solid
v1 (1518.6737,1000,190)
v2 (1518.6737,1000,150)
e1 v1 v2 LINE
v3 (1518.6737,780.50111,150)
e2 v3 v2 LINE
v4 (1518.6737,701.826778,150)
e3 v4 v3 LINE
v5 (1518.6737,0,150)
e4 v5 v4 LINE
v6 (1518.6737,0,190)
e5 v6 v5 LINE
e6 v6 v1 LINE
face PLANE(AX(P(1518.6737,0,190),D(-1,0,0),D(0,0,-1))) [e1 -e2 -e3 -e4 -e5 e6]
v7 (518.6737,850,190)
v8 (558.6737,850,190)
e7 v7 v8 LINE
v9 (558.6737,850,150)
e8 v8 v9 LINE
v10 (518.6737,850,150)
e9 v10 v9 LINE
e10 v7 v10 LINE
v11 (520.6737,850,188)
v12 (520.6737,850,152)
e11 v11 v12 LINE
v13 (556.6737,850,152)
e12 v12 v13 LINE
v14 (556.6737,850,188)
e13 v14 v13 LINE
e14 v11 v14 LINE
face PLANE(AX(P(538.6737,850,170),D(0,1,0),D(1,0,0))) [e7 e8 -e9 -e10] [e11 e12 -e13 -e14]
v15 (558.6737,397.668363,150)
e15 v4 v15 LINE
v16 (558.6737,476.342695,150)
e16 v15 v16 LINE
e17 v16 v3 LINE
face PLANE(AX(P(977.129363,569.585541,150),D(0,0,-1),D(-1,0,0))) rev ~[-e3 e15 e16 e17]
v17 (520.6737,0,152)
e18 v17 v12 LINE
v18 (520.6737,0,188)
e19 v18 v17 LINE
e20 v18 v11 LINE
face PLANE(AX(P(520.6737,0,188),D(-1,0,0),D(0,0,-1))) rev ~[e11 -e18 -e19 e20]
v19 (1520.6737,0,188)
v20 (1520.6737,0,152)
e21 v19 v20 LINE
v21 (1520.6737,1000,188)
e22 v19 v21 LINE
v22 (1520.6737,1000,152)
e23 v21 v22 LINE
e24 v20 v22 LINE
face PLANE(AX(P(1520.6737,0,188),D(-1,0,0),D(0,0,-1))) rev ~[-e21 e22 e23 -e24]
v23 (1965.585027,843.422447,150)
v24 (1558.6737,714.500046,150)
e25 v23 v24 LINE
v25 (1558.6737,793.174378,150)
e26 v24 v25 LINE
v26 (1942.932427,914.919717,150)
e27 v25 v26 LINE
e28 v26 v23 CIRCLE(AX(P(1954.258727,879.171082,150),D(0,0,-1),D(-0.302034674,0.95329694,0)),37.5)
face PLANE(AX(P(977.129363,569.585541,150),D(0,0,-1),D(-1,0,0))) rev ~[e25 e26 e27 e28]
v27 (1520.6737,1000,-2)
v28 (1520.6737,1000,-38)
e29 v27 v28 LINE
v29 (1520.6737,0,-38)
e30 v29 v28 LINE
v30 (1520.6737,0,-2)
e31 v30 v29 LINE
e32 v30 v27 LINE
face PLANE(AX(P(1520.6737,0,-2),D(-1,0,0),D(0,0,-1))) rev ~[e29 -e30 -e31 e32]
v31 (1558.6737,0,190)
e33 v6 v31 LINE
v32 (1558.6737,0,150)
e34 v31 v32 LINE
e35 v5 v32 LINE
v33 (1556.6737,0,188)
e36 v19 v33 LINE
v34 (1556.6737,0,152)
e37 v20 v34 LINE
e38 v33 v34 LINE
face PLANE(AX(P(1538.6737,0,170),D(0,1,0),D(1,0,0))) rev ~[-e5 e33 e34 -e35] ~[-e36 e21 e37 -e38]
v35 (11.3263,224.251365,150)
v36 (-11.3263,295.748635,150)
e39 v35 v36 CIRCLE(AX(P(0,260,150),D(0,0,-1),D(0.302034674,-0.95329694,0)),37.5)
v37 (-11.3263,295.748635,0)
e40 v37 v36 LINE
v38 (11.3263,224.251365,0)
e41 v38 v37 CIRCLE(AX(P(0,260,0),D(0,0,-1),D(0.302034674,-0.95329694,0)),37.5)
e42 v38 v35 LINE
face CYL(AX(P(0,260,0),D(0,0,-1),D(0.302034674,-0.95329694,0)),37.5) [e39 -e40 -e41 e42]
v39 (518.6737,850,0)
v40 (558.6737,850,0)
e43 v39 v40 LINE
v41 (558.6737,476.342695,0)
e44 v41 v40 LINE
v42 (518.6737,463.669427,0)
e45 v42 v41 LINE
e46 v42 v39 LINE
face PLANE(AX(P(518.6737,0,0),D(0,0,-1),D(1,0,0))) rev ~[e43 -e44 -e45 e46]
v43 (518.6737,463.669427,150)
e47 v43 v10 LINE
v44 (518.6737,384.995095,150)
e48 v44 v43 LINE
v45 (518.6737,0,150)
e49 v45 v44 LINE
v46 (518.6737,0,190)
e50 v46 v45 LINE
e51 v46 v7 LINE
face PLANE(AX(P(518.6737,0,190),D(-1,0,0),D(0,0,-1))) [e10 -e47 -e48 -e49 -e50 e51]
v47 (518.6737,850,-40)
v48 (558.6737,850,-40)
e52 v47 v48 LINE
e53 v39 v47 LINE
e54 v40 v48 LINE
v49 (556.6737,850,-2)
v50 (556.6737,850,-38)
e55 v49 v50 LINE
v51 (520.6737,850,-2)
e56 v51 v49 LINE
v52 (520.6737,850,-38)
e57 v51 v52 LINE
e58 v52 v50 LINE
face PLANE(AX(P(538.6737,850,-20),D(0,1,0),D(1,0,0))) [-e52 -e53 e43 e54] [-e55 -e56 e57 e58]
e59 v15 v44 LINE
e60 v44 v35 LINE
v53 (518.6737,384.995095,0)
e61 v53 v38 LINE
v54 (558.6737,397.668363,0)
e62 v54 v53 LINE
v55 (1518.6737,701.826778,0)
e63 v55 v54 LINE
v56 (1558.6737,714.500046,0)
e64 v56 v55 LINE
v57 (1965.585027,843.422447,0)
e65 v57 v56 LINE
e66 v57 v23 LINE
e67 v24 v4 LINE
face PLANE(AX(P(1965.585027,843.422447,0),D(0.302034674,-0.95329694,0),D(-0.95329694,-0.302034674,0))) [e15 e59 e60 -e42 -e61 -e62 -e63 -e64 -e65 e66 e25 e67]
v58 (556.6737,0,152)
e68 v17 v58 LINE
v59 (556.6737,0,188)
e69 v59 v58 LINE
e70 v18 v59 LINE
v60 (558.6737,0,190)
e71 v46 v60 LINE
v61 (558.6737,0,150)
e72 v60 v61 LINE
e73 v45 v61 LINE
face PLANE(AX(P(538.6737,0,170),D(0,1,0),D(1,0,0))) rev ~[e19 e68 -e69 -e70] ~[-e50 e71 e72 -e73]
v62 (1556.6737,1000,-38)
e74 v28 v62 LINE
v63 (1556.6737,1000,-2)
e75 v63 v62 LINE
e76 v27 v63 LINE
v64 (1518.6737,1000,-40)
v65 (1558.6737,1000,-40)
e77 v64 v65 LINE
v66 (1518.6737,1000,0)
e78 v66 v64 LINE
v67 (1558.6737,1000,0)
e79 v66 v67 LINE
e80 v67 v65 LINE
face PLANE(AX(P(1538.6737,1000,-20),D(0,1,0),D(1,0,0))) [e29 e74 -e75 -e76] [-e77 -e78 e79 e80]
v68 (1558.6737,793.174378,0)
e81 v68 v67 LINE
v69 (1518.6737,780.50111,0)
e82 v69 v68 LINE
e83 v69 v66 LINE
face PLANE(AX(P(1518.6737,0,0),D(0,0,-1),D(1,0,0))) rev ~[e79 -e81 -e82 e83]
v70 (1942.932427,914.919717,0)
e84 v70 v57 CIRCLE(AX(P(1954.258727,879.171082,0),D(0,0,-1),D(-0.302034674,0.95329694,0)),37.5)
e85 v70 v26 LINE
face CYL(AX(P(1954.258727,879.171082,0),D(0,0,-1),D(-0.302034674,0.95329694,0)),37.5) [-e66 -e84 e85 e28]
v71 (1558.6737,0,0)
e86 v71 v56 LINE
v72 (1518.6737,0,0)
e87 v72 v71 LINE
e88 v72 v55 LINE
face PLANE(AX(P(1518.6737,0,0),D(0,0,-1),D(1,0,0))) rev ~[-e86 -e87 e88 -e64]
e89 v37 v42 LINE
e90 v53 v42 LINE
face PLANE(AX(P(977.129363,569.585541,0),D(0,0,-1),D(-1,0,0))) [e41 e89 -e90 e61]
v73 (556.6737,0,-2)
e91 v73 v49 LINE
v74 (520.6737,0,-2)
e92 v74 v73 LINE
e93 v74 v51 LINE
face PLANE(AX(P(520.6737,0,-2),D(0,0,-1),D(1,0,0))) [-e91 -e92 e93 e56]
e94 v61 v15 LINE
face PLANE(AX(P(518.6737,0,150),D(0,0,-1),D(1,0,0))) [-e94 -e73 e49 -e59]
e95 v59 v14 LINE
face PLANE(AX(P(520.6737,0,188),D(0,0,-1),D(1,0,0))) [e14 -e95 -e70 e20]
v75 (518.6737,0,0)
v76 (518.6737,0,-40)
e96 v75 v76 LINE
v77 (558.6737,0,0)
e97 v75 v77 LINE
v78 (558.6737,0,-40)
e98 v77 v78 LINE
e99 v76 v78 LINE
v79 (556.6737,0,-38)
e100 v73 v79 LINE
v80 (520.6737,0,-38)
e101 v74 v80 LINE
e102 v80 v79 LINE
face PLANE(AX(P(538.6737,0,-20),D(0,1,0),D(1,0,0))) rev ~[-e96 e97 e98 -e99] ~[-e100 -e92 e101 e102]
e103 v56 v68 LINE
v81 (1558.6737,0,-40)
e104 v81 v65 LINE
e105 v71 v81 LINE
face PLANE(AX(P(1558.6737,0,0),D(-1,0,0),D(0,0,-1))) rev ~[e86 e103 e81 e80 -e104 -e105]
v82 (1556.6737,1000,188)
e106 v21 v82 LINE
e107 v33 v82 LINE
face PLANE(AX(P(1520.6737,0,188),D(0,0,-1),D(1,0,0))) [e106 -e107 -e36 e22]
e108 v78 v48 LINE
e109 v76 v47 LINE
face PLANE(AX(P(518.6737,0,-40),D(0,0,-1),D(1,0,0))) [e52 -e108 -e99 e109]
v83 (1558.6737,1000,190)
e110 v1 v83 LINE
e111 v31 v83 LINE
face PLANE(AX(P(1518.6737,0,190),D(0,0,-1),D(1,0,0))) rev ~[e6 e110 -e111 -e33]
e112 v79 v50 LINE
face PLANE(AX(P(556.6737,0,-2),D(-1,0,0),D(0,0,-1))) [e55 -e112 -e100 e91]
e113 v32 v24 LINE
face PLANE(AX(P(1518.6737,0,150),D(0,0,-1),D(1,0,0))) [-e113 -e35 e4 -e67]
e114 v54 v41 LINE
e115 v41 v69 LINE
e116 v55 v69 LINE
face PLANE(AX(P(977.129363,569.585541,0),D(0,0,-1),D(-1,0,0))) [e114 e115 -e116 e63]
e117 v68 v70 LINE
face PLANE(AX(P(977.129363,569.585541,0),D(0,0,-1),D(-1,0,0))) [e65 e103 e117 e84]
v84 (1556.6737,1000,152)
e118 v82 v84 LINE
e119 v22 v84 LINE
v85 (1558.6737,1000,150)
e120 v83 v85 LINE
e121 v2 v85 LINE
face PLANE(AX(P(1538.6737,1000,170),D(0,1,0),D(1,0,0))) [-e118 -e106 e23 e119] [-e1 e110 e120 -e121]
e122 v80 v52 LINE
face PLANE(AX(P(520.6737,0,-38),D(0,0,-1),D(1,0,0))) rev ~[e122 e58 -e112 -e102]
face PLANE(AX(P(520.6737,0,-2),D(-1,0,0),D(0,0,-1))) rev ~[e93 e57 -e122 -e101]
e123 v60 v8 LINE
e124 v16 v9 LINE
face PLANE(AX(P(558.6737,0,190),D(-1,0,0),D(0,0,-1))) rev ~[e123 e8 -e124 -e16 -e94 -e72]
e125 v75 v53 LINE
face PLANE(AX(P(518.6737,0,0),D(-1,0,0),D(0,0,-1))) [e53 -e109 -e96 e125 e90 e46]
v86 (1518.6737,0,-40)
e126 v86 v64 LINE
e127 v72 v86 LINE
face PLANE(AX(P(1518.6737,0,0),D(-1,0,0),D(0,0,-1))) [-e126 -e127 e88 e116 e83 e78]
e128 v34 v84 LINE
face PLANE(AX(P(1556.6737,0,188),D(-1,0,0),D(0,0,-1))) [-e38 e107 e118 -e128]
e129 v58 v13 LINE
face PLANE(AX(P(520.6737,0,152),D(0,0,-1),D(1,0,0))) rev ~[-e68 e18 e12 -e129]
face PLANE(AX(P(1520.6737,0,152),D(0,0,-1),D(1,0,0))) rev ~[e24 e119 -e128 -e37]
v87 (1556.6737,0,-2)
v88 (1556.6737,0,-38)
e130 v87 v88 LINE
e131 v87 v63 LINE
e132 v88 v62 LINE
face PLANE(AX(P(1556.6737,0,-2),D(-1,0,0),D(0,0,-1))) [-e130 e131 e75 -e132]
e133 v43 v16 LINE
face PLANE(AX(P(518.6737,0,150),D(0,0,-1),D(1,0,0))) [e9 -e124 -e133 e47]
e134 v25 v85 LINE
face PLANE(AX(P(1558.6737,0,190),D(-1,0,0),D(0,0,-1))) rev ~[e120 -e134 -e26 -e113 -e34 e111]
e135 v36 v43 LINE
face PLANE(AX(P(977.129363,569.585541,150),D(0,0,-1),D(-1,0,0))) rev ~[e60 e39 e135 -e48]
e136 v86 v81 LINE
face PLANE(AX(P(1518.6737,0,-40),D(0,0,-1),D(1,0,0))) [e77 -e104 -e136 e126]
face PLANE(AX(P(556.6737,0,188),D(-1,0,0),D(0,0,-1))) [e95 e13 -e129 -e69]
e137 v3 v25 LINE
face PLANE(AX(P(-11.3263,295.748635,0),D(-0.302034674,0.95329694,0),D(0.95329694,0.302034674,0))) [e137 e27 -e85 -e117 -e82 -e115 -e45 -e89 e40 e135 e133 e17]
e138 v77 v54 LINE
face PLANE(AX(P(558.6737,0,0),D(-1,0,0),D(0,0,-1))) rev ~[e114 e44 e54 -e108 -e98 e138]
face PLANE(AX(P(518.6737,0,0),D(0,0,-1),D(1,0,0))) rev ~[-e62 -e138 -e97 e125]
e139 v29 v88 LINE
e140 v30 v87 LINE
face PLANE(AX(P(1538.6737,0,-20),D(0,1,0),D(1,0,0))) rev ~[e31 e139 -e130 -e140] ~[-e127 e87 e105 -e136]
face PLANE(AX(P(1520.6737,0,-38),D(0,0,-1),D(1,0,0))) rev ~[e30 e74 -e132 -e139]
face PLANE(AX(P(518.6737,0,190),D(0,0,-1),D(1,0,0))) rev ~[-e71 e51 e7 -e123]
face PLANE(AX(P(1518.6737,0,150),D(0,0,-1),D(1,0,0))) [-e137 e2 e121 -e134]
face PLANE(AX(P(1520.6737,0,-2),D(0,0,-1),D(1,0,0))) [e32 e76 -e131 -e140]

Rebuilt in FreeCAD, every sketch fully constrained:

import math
import FreeCAD as App
import Part
import Sketcher
from FreeCAD import Vector

doc = App.newDocument("Part")
params = doc.addObject("Spreadsheet::Sheet", "Params")
for row, (alias, value) in enumerate([
    ("sketch1_radius", "37.5 mm"),
    ("sketch1_length", "2050 mm"),
    ("pad1_length", "150 mm"),
    ("sketch2_width", "40 mm"),
    ("sketch2_width2", "36 mm"),
    ("pad2_length", "850 mm"),
    ("sketch3_width", "40 mm"),
    ("sketch3_width2", "36 mm"),
    ("pad3_length", "1000 mm"),
], start=1):
    params.set(f"A{row}", alias)
    params.set(f"B{row}", "=" + value)
    params.setAlias(f"B{row}", alias)

body = doc.addObject("PartDesign::Body", "Body")

# Sketch on XY plane
sketch1 = body.newObject("Sketcher::SketchObject", "Sketch")
sketch1.AttachmentSupport = (doc.getObject("XY_Plane"), [""])
sketch1.MapMode = "FlatFace"
sketch1.addGeometry(Part.LineSegment(Vector(1942.932427, 914.919717, 0), Vector(-11.3263, 295.748635, 0)), False)
sketch1.addGeometry(Part.ArcOfCircle(Part.Circle(Vector(0, 260, 0), Vector(0, 0, 1), 37.5), math.radians(107.579851), math.radians(287.579851)), False)
sketch1.addGeometry(Part.LineSegment(Vector(11.3263, 224.251365, 0), Vector(1965.585027, 843.422447, 0)), False)
sketch1.addGeometry(Part.ArcOfCircle(Part.Circle(Vector(1954.258727, 879.171082, 0), Vector(0, 0, 1), 37.5), math.radians(-72.420149), math.radians(107.579851)), False)
sketch1.addConstraint(Sketcher.Constraint("Tangent", 0, 2, 1, 1))
sketch1.addConstraint(Sketcher.Constraint("Tangent", 1, 2, 2, 1))
sketch1.addConstraint(Sketcher.Constraint("Tangent", 2, 2, 3, 1))
sketch1.addConstraint(Sketcher.Constraint("Tangent", 3, 2, 0, 1))
sketch1.addConstraint(Sketcher.Constraint("Equal", 1, 3))
sketch1.addConstraint(Sketcher.Constraint("PointOnObject", 1, 3, -2))
sketch1.addConstraint(Sketcher.Constraint("Radius", 1, 37.5))
sketch1.addConstraint(Sketcher.Constraint("Distance", 0, 2050.0))
sketch1.addConstraint(Sketcher.Constraint("DistanceY", -1, 1, 1, 3, 260.0))
sketch1.addConstraint(Sketcher.Constraint("DistanceX", 0, 2, -1, 1, 11.3263))
sketch1.setExpression("Constraints[6]", "Params.sketch1_radius")
sketch1.setExpression("Constraints[7]", "Params.sketch1_length")
pad1 = body.newObject("PartDesign::Pad", "Pad")
pad1.Profile = sketch1
pad1.setExpression("Length", "Params.pad1_length")

# Sketch on XZ plane
sketch2 = body.newObject("Sketcher::SketchObject", "Sketch001")
sketch2.AttachmentSupport = (doc.getObject("XZ_Plane"), [""])
sketch2.MapMode = "FlatFace"
sketch2.addGeometry(Part.LineSegment(Vector(518.6737, -40, 0), Vector(518.6737, 0, 0)), False)
sketch2.addGeometry(Part.LineSegment(Vector(518.6737, 0, 0), Vector(558.6737, 0, 0)), False)
sketch2.addGeometry(Part.LineSegment(Vector(558.6737, 0, 0), Vector(558.6737, -40, 0)), False)
sketch2.addGeometry(Part.LineSegment(Vector(558.6737, -40, 0), Vector(518.6737, -40, 0)), False)
sketch2.addGeometry(Part.LineSegment(Vector(556.6737, -2, 0), Vector(520.6737, -2, 0)), False)
sketch2.addGeometry(Part.LineSegment(Vector(520.6737, -2, 0), Vector(520.6737, -38, 0)), False)
sketch2.addGeometry(Part.LineSegment(Vector(520.6737, -38, 0), Vector(556.6737, -38, 0)), False)
sketch2.addGeometry(Part.LineSegment(Vector(556.6737, -38, 0), Vector(556.6737, -2, 0)), False)
sketch2.addGeometry(Part.LineSegment(Vector(518.6737, 150, 0), Vector(518.6737, 190, 0)), False)
sketch2.addGeometry(Part.LineSegment(Vector(518.6737, 190, 0), Vector(558.6737, 190, 0)), False)
sketch2.addGeometry(Part.LineSegment(Vector(558.6737, 190, 0), Vector(558.6737, 150, 0)), False)
sketch2.addGeometry(Part.LineSegment(Vector(558.6737, 150, 0), Vector(518.6737, 150, 0)), False)
sketch2.addGeometry(Part.LineSegment(Vector(556.6737, 188, 0), Vector(520.6737, 188, 0)), False)
sketch2.addGeometry(Part.LineSegment(Vector(520.6737, 188, 0), Vector(520.6737, 152, 0)), False)
sketch2.addGeometry(Part.LineSegment(Vector(520.6737, 152, 0), Vector(556.6737, 152, 0)), False)
sketch2.addGeometry(Part.LineSegment(Vector(556.6737, 152, 0), Vector(556.6737, 188, 0)), False)
sketch2.addConstraint(Sketcher.Constraint("Coincident", 0, 2, 1, 1))
sketch2.addConstraint(Sketcher.Constraint("Coincident", 1, 2, 2, 1))
sketch2.addConstraint(Sketcher.Constraint("Coincident", 2, 2, 3, 1))
sketch2.addConstraint(Sketcher.Constraint("Coincident", 3, 2, 0, 1))
sketch2.addConstraint(Sketcher.Constraint("Coincident", 4, 2, 5, 1))
sketch2.addConstraint(Sketcher.Constraint("Coincident", 5, 2, 6, 1))
sketch2.addConstraint(Sketcher.Constraint("Coincident", 6, 2, 7, 1))
sketch2.addConstraint(Sketcher.Constraint("Coincident", 7, 2, 4, 1))
sketch2.addConstraint(Sketcher.Constraint("Coincident", 8, 2, 9, 1))
sketch2.addConstraint(Sketcher.Constraint("Coincident", 9, 2, 10, 1))
sketch2.addConstraint(Sketcher.Constraint("Coincident", 10, 2, 11, 1))
sketch2.addConstraint(Sketcher.Constraint("Coincident", 11, 2, 8, 1))
sketch2.addConstraint(Sketcher.Constraint("Coincident", 12, 2, 13, 1))
sketch2.addConstraint(Sketcher.Constraint("Coincident", 13, 2, 14, 1))
sketch2.addConstraint(Sketcher.Constraint("Coincident", 14, 2, 15, 1))
sketch2.addConstraint(Sketcher.Constraint("Coincident", 15, 2, 12, 1))
sketch2.addConstraint(Sketcher.Constraint("Vertical", 0))
sketch2.addConstraint(Sketcher.Constraint("Horizontal", 1))
sketch2.addConstraint(Sketcher.Constraint("Vertical", 2))
sketch2.addConstraint(Sketcher.Constraint("Horizontal", 3))
sketch2.addConstraint(Sketcher.Constraint("Horizontal", 4))
sketch2.addConstraint(Sketcher.Constraint("Vertical", 5))
sketch2.addConstraint(Sketcher.Constraint("Horizontal", 6))
sketch2.addConstraint(Sketcher.Constraint("Vertical", 7))
sketch2.addConstraint(Sketcher.Constraint("Vertical", 8))
sketch2.addConstraint(Sketcher.Constraint("Horizontal", 9))
sketch2.addConstraint(Sketcher.Constraint("Vertical", 10))
sketch2.addConstraint(Sketcher.Constraint("Horizontal", 11))
sketch2.addConstraint(Sketcher.Constraint("Horizontal", 12))
sketch2.addConstraint(Sketcher.Constraint("Vertical", 13))
sketch2.addConstraint(Sketcher.Constraint("Horizontal", 14))
sketch2.addConstraint(Sketcher.Constraint("Vertical", 15))
sketch2.addConstraint(Sketcher.Constraint("PointOnObject", 0, 2, -1))
sketch2.addConstraint(Sketcher.Constraint("Vertical", 3, 2, 8, 2))
sketch2.addConstraint(Sketcher.Constraint("Vertical", 2, 2, 9, 2))
sketch2.addConstraint(Sketcher.Constraint("Vertical", 5, 2, 12, 2))
sketch2.addConstraint(Sketcher.Constraint("Vertical", 7, 2, 14, 2))
sketch2.addConstraint(Sketcher.Constraint("Equal", 11, 0))
sketch2.addConstraint(Sketcher.Constraint("Equal", 14, 5))
sketch2.addConstraint(Sketcher.Constraint("Equal", 2, 8))
sketch2.addConstraint(Sketcher.Constraint("Equal", 7, 13))
sketch2.addConstraint(Sketcher.Constraint("DistanceX", 1, 1, 1, 2, 40.0))
sketch2.addConstraint(Sketcher.Constraint("DistanceX", 4, 2, 4, 1, 36.0))
sketch2.addConstraint(Sketcher.Constraint("DistanceY", 4, 2, -1, 1, 2.0))
sketch2.addConstraint(Sketcher.Constraint("DistanceY", -1, 1, 8, 2, 190.0))
sketch2.addConstraint(Sketcher.Constraint("DistanceY", -1, 1, 12, 2, 188.0))
sketch2.addConstraint(Sketcher.Constraint("DistanceX", 0, 2, 4, 2, 2.0))
sketch2.addConstraint(Sketcher.Constraint("DistanceX", -1, 1, 0, 2, 518.6737))
sketch2.setExpression("Constraints[41]", "Params.sketch2_width")
sketch2.setExpression("Constraints[42]", "Params.sketch2_width2")
pad2 = body.newObject("PartDesign::Pad", "Pad001")
pad2.Profile = sketch2
pad2.setExpression("Length", "Params.pad2_length")
pad2.Reversed = True

# Sketch on XZ plane
sketch3 = body.newObject("Sketcher::SketchObject", "Sketch002")
sketch3.AttachmentSupport = (doc.getObject("XZ_Plane"), [""])
sketch3.MapMode = "FlatFace"
sketch3.addGeometry(Part.LineSegment(Vector(1518.6737, -40, 0), Vector(1518.6737, 0, 0)), False)
sketch3.addGeometry(Part.LineSegment(Vector(1518.6737, 0, 0), Vector(1558.6737, 0, 0)), False)
sketch3.addGeometry(Part.LineSegment(Vector(1558.6737, 0, 0), Vector(1558.6737, -40, 0)), False)
sketch3.addGeometry(Part.LineSegment(Vector(1558.6737, -40, 0), Vector(1518.6737, -40, 0)), False)
sketch3.addGeometry(Part.LineSegment(Vector(1556.6737, -2, 0), Vector(1520.6737, -2, 0)), False)
sketch3.addGeometry(Part.LineSegment(Vector(1520.6737, -2, 0), Vector(1520.6737, -38, 0)), False)
sketch3.addGeometry(Part.LineSegment(Vector(1520.6737, -38, 0), Vector(1556.6737, -38, 0)), False)
sketch3.addGeometry(Part.LineSegment(Vector(1556.6737, -38, 0), Vector(1556.6737, -2, 0)), False)
sketch3.addGeometry(Part.LineSegment(Vector(1518.6737, 150, 0), Vector(1518.6737, 190, 0)), False)
sketch3.addGeometry(Part.LineSegment(Vector(1518.6737, 190, 0), Vector(1558.6737, 190, 0)), False)
sketch3.addGeometry(Part.LineSegment(Vector(1558.6737, 190, 0), Vector(1558.6737, 150, 0)), False)
sketch3.addGeometry(Part.LineSegment(Vector(1558.6737, 150, 0), Vector(1518.6737, 150, 0)), False)
sketch3.addGeometry(Part.LineSegment(Vector(1556.6737, 188, 0), Vector(1520.6737, 188, 0)), False)
sketch3.addGeometry(Part.LineSegment(Vector(1520.6737, 188, 0), Vector(1520.6737, 152, 0)), False)
sketch3.addGeometry(Part.LineSegment(Vector(1520.6737, 152, 0), Vector(1556.6737, 152, 0)), False)
sketch3.addGeometry(Part.LineSegment(Vector(1556.6737, 152, 0), Vector(1556.6737, 188, 0)), False)
sketch3.addConstraint(Sketcher.Constraint("Coincident", 0, 2, 1, 1))
sketch3.addConstraint(Sketcher.Constraint("Coincident", 1, 2, 2, 1))
sketch3.addConstraint(Sketcher.Constraint("Coincident", 2, 2, 3, 1))
sketch3.addConstraint(Sketcher.Constraint("Coincident", 3, 2, 0, 1))
sketch3.addConstraint(Sketcher.Constraint("Coincident", 4, 2, 5, 1))
sketch3.addConstraint(Sketcher.Constraint("Coincident", 5, 2, 6, 1))
sketch3.addConstraint(Sketcher.Constraint("Coincident", 6, 2, 7, 1))
sketch3.addConstraint(Sketcher.Constraint("Coincident", 7, 2, 4, 1))
sketch3.addConstraint(Sketcher.Constraint("Coincident", 8, 2, 9, 1))
sketch3.addConstraint(Sketcher.Constraint("Coincident", 9, 2, 10, 1))
sketch3.addConstraint(Sketcher.Constraint("Coincident", 10, 2, 11, 1))
sketch3.addConstraint(Sketcher.Constraint("Coincident", 11, 2, 8, 1))
sketch3.addConstraint(Sketcher.Constraint("Coincident", 12, 2, 13, 1))
sketch3.addConstraint(Sketcher.Constraint("Coincident", 13, 2, 14, 1))
sketch3.addConstraint(Sketcher.Constraint("Coincident", 14, 2, 15, 1))
sketch3.addConstraint(Sketcher.Constraint("Coincident", 15, 2, 12, 1))
sketch3.addConstraint(Sketcher.Constraint("Vertical", 0))
sketch3.addConstraint(Sketcher.Constraint("Horizontal", 1))
sketch3.addConstraint(Sketcher.Constraint("Vertical", 2))
sketch3.addConstraint(Sketcher.Constraint("Horizontal", 3))
sketch3.addConstraint(Sketcher.Constraint("Horizontal", 4))
sketch3.addConstraint(Sketcher.Constraint("Vertical", 5))
sketch3.addConstraint(Sketcher.Constraint("Horizontal", 6))
sketch3.addConstraint(Sketcher.Constraint("Vertical", 7))
sketch3.addConstraint(Sketcher.Constraint("Vertical", 8))
sketch3.addConstraint(Sketcher.Constraint("Horizontal", 9))
sketch3.addConstraint(Sketcher.Constraint("Vertical", 10))
sketch3.addConstraint(Sketcher.Constraint("Horizontal", 11))
sketch3.addConstraint(Sketcher.Constraint("Horizontal", 12))
sketch3.addConstraint(Sketcher.Constraint("Vertical", 13))
sketch3.addConstraint(Sketcher.Constraint("Horizontal", 14))
sketch3.addConstraint(Sketcher.Constraint("Vertical", 15))
sketch3.addConstraint(Sketcher.Constraint("PointOnObject", 0, 2, -1))
sketch3.addConstraint(Sketcher.Constraint("Vertical", 3, 2, 8, 2))
sketch3.addConstraint(Sketcher.Constraint("Vertical", 2, 2, 9, 2))
sketch3.addConstraint(Sketcher.Constraint("Vertical", 5, 2, 12, 2))
sketch3.addConstraint(Sketcher.Constraint("Vertical", 7, 2, 14, 2))
sketch3.addConstraint(Sketcher.Constraint("Equal", 11, 0))
sketch3.addConstraint(Sketcher.Constraint("Equal", 14, 5))
sketch3.addConstraint(Sketcher.Constraint("Equal", 2, 8))
sketch3.addConstraint(Sketcher.Constraint("Equal", 7, 13))
sketch3.addConstraint(Sketcher.Constraint("DistanceX", 1, 1, 1, 2, 40.0))
sketch3.addConstraint(Sketcher.Constraint("DistanceX", 4, 2, 4, 1, 36.0))
sketch3.addConstraint(Sketcher.Constraint("DistanceY", 4, 2, -1, 1, 2.0))
sketch3.addConstraint(Sketcher.Constraint("DistanceY", -1, 1, 8, 2, 190.0))
sketch3.addConstraint(Sketcher.Constraint("DistanceY", -1, 1, 12, 2, 188.0))
sketch3.addConstraint(Sketcher.Constraint("DistanceX", 0, 2, 4, 2, 2.0))
sketch3.addConstraint(Sketcher.Constraint("DistanceX", -1, 1, 0, 2, 1518.6737))
sketch3.setExpression("Constraints[41]", "Params.sketch3_width")
sketch3.setExpression("Constraints[42]", "Params.sketch3_width2")
pad3 = body.newObject("PartDesign::Pad", "Pad002")
pad3.Profile = sketch3
pad3.setExpression("Length", "Params.pad3_length")
pad3.Reversed = True

doc.recompute()
